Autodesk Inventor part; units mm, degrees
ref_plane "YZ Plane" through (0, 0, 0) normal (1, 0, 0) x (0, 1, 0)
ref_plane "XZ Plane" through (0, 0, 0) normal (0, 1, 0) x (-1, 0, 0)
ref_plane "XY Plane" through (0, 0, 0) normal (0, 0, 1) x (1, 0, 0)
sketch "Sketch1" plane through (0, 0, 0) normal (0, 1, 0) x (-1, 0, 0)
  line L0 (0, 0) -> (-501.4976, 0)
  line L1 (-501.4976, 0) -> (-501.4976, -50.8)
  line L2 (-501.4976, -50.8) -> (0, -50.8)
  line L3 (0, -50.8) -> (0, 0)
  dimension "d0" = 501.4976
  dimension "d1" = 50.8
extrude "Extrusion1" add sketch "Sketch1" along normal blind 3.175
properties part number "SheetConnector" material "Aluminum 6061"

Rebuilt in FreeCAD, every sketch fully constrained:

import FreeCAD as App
import Part
import Sketcher

V = App.Vector
Q = App.Units.Quantity


def add_polygon(sketch, points):
    """Adds a closed chain of lines whose ends are joined by coincident constraints."""
    first, n = sketch.GeometryCount, len(points)
    for a, b in zip(points, points[1:] + points[:1]):
        sketch.addGeometry(Part.LineSegment(App.Vector(*a, 0), App.Vector(*b, 0)), False)
    for i in range(n):
        sketch.addConstraint(Sketcher.Constraint("Coincident", first + i, 2, first + (i + 1) % n, 1))

doc = App.newDocument("Part")
body = doc.addObject("PartDesign::Body", "Body")

# Sketch on XZ plane
sketch1 = body.newObject("Sketcher::SketchObject", "Sketch")
sketch1.AttachmentSupport = (doc.getObject("XZ_Plane"), [""])
sketch1.MapMode = "FlatFace"
add_polygon(sketch1, [(0, -51), (0, 0), (501, 0), (501, -51)])  # lines 0-3
sketch1.addConstraint([
    Sketcher.Constraint("Vertical", 0),
    Sketcher.Constraint("Horizontal", 1),
    Sketcher.Constraint("Vertical", 2),
    Sketcher.Constraint("Horizontal", 3),
    Sketcher.Constraint("Coincident", 0, 2, -1, 1),
    Sketcher.Constraint("DistanceY", 0, 1, 0, 2, Q("2 in")),
    Sketcher.Constraint("DistanceX", 1, 1, 1, 2, Q("19.744 in")),
])
pad1 = body.newObject("PartDesign::Pad", "Pad")
pad1.Profile = sketch1
pad1.Length = Q("0.125 in")
pad1.Reversed = True

doc.recompute()
